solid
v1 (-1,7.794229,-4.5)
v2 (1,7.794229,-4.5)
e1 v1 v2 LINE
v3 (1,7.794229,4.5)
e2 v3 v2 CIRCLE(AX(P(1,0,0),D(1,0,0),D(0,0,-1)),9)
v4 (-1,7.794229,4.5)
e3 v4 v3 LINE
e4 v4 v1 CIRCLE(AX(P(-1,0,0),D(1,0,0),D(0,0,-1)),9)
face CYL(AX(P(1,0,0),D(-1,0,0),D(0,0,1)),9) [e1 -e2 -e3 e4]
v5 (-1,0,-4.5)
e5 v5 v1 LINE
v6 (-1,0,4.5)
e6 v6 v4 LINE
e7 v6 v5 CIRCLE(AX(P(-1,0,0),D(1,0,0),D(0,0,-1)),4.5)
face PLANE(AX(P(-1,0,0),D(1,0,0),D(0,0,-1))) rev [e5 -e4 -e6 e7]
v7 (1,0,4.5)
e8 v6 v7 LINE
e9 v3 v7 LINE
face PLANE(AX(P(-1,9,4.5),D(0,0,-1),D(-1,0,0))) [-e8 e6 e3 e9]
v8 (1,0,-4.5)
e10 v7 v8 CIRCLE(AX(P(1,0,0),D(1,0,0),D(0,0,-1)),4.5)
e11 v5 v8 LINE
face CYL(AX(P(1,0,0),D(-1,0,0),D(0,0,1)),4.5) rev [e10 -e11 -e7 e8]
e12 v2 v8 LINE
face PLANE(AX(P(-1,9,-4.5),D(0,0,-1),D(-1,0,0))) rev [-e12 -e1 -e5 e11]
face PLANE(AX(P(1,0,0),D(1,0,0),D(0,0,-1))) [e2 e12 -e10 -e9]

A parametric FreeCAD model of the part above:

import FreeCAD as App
import Part
import Sketcher
Q = App.Units.Quantity

doc = App.newDocument("Part")
params = doc.addObject("Spreadsheet::Sheet", "Params")
for row, (alias, value) in enumerate([
    ("sketch1_diameter", "18 mm"),
    ("sketch1_diameter2", "9 mm"),
    ("pad1_length", "2 mm"),
    ("sketch2_width", "2 mm"),
    ("sketch2_height", "9 mm"),
], start=1):
    params.set(f"A{row}", alias)
    params.set(f"B{row}", "=" + value)
    params.setAlias(f"B{row}", alias)

body = doc.addObject("PartDesign::Body", "Body")

# Sketch on YZ plane
sketch1 = body.newObject("Sketcher::SketchObject", "Sketch")
sketch1.AttachmentSupport = (doc.getObject("YZ_Plane"), [""])
sketch1.MapMode = "FlatFace"
sketch1.addGeometry([
    Part.Circle(App.Vector(0, 0, 0), App.Vector(0, 0, 1), 9),
    Part.Circle(App.Vector(0, 0, 0), App.Vector(0, 0, 1), 4.5),
], False)
sketch1.addConstraint([
    Sketcher.Constraint("Coincident", 0, 3, -1, 1),
    Sketcher.Constraint("Coincident", 1, 3, -1, 1),
    Sketcher.Constraint("Diameter", 0, Q("18 mm")),
    Sketcher.Constraint("Diameter", 1, Q("9 mm")),
])
sketch1.setExpression("Constraints[2]", "Params.sketch1_diameter")
sketch1.setExpression("Constraints[3]", "Params.sketch1_diameter2")
pad1 = body.newObject("PartDesign::Pad", "Pad")
pad1.Profile = sketch1
pad1.setExpression("Length", "Params.pad1_length")
pad1.Midplane = True

# Sketch on XZ plane
sketch2 = body.newObject("Sketcher::SketchObject", "Sketch001")
sketch2.AttachmentSupport = (doc.getObject("XZ_Plane"), [""])
sketch2.MapMode = "FlatFace"
sketch2.addGeometry([
    Part.LineSegment(App.Vector(-1, -4.5, 0), App.Vector(-1, 4.5, 0)),
    Part.LineSegment(App.Vector(-1, 4.5, 0), App.Vector(1, 4.5, 0)),
    Part.LineSegment(App.Vector(1, 4.5, 0), App.Vector(1, -4.5, 0)),
    Part.LineSegment(App.Vector(1, -4.5, 0), App.Vector(-1, -4.5, 0)),
], False)
sketch2.addConstraint([
    Sketcher.Constraint("Coincident", 0, 2, 1, 1),
    Sketcher.Constraint("Coincident", 1, 2, 2, 1),
    Sketcher.Constraint("Coincident", 2, 2, 3, 1),
    Sketcher.Constraint("Coincident", 3, 2, 0, 1),
    Sketcher.Constraint("Vertical", 0),
    Sketcher.Constraint("Horizontal", 1),
    Sketcher.Constraint("Vertical", 2),
    Sketcher.Constraint("Horizontal", 3),
    Sketcher.Constraint("Symmetric", 0, 2, 2, 2, -1, 1),
    Sketcher.Constraint("DistanceX", 1, 1, 1, 2, Q("2 mm")),
    Sketcher.Constraint("DistanceY", 0, 1, 0, 2, Q("9 mm")),
])
sketch2.setExpression("Constraints[9]", "Params.sketch2_width")
sketch2.setExpression("Constraints[10]", "Params.sketch2_height")
pocket1 = body.newObject("PartDesign::Pocket", "Pocket")
pocket1.Profile = sketch2
pocket1.Type = "ThroughAll"

doc.recompute()
